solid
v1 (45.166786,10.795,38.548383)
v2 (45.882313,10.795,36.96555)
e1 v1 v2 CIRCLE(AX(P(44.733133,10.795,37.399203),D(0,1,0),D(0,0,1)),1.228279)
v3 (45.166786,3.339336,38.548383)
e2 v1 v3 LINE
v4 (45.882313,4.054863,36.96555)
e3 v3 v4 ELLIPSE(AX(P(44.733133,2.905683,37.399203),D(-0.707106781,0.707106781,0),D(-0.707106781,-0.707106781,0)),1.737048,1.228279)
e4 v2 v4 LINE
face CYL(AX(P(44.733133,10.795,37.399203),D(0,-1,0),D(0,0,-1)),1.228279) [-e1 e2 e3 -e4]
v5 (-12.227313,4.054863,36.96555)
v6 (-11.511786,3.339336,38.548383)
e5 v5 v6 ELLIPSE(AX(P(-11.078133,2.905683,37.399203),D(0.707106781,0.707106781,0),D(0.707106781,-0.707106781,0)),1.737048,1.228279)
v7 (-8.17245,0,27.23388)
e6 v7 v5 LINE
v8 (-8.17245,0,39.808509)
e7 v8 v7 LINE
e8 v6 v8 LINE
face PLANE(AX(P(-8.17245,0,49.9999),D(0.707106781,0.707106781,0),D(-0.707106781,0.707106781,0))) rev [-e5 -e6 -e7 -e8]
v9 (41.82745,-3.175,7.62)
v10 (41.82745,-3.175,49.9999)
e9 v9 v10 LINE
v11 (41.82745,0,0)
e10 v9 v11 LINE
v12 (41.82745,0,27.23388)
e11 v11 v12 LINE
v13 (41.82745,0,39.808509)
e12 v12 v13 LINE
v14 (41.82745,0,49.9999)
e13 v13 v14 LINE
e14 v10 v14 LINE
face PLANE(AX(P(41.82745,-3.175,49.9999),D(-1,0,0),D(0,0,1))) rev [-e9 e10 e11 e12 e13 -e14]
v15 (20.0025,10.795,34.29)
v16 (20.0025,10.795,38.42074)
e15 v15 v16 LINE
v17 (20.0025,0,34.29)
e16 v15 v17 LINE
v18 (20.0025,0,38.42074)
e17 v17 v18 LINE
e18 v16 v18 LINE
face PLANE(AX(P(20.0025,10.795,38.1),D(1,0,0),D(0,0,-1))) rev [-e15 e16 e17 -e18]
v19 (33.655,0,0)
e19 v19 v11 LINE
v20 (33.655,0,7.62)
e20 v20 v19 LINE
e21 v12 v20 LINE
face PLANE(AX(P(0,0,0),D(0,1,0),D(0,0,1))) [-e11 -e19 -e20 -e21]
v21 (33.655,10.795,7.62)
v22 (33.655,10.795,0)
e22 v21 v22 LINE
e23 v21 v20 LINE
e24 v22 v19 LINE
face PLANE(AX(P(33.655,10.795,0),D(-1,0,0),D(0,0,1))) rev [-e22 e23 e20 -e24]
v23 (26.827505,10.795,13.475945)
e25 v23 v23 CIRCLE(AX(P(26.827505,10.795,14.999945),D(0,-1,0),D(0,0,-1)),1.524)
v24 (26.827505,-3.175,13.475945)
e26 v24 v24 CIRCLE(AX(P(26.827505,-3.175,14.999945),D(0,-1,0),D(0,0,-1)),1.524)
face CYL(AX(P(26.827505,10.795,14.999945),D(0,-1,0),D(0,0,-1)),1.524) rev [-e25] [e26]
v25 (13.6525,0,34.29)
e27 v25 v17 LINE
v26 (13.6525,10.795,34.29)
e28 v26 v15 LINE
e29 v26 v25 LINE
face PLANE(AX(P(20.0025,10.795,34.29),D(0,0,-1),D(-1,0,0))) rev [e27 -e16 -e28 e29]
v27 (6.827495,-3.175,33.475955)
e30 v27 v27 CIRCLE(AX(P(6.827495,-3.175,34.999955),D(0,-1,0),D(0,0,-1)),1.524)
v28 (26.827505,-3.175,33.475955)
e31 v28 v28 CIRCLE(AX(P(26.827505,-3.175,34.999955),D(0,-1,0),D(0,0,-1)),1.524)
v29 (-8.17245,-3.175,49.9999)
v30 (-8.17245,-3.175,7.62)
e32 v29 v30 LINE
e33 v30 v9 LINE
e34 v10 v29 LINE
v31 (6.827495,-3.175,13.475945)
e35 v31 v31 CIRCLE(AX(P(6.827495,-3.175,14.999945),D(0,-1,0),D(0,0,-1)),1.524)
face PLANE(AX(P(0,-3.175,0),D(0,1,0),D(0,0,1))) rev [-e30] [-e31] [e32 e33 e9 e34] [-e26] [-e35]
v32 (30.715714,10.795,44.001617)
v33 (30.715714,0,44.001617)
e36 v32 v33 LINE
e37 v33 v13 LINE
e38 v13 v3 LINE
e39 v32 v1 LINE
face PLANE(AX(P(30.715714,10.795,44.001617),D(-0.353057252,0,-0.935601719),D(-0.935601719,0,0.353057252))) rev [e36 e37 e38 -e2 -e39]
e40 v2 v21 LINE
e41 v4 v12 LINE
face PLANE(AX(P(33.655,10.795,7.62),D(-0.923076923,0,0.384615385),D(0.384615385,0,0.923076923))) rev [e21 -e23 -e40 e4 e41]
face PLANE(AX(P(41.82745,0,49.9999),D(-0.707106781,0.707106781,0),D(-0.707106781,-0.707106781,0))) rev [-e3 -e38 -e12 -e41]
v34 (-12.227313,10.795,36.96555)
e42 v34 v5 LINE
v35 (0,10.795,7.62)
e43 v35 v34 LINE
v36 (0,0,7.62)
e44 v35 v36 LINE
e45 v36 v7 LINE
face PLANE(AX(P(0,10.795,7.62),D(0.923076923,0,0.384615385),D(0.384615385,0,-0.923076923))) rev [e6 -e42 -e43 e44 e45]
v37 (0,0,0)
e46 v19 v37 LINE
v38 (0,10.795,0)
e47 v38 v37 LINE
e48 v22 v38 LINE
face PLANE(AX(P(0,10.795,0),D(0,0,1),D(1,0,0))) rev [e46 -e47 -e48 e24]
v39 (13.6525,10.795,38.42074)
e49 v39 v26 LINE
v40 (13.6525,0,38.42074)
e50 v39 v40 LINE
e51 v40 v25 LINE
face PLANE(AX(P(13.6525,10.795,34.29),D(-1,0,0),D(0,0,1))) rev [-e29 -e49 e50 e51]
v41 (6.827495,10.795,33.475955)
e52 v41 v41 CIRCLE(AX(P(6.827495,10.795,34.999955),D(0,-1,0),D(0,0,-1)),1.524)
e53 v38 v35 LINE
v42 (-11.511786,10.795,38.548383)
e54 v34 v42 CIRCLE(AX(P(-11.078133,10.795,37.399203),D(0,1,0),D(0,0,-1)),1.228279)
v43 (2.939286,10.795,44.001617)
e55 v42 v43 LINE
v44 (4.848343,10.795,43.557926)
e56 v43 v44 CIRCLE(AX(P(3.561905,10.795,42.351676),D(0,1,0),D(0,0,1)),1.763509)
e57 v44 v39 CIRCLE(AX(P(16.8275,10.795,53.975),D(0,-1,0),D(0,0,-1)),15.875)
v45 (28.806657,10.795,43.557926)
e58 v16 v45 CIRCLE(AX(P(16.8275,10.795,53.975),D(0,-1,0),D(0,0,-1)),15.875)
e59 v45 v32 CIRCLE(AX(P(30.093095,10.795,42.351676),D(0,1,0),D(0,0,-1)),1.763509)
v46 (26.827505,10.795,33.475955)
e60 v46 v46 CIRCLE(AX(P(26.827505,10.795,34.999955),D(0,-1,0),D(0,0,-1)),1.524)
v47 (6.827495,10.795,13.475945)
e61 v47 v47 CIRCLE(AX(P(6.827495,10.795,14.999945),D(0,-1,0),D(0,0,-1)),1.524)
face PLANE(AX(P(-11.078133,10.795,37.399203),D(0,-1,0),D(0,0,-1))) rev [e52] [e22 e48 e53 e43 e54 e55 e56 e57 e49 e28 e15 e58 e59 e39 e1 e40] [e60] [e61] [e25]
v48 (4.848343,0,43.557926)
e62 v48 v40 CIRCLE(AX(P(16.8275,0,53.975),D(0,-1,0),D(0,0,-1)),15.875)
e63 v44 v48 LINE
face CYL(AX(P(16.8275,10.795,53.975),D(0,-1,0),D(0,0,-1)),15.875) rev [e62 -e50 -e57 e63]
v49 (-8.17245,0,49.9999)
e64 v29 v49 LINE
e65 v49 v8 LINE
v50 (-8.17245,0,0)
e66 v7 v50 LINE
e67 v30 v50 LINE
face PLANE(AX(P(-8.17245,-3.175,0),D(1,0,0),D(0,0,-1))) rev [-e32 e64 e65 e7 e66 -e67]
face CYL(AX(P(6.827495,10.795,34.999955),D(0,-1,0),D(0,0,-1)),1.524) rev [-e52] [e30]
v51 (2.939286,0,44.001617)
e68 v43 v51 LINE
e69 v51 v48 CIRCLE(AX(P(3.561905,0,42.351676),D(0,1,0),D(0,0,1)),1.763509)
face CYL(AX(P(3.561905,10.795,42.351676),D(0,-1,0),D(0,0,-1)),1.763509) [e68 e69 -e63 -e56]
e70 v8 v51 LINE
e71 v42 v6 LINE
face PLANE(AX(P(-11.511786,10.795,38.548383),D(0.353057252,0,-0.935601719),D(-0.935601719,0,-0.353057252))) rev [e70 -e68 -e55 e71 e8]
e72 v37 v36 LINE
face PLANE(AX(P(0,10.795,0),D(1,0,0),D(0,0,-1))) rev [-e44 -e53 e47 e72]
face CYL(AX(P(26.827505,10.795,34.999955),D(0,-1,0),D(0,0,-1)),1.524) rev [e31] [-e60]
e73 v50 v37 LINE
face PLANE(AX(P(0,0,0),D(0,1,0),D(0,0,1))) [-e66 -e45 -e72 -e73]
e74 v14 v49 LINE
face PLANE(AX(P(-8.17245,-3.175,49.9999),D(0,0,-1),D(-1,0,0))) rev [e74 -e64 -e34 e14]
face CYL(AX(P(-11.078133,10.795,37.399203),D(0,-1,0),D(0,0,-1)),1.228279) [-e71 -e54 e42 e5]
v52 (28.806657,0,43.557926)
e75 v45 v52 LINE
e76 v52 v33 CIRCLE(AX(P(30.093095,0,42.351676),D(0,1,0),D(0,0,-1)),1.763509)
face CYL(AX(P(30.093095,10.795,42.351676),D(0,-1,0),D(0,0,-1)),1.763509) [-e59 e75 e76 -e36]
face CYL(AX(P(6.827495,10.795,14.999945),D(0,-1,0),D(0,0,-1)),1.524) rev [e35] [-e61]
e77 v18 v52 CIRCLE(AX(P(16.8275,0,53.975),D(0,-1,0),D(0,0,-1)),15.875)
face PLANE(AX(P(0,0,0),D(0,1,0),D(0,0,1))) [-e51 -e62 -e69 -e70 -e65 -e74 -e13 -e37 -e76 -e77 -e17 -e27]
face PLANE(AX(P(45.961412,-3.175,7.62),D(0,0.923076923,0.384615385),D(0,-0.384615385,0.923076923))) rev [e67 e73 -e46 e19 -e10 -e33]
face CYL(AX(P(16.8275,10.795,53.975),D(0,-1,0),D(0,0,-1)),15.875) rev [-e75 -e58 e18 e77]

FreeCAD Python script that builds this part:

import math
import FreeCAD as App
import Part
import Sketcher

V = App.Vector
Q = App.Units.Quantity

doc = App.newDocument("Part")
body = doc.addObject("PartDesign::Body", "Body")

sketch1 = doc.addObject("Sketcher::SketchObject", "Sketch")
body.addObject(sketch1)
sketch1.AttachmentSupport = (doc.XZ_Plane, [""])
sketch1.MapMode = "FlatFace"
sketch1.addGeometry(Part.LineSegment(V(33.7, 0, 0), V(0, 0, 0)), False)
sketch1.addGeometry(Part.LineSegment(V(0, 0, 0), V(0, 7.6, 0)), False)
sketch1.addGeometry(Part.LineSegment(V(0, 7.6, 0), V(-12.2, 37, 0)), False)
sketch1.addGeometry(Part.ArcOfCircle(Part.Circle(V(-11.1, 37.4, 0), V(0, 0, 1), 1.2), math.radians(111), math.radians(201)), False)
sketch1.addGeometry(Part.LineSegment(V(-11.5, 38.5, 0), V(2.9, 44, 0)), False)
sketch1.addGeometry(Part.ArcOfCircle(Part.Circle(V(3.6, 42.4, 0), V(0, 0, 1), 1.8), math.radians(43), math.radians(111)), False)
sketch1.addGeometry(Part.ArcOfCircle(Part.Circle(V(16.8, 54, 0), V(0, 0, 1), 15.9), math.radians(-139), math.radians(-102)), False)
sketch1.addGeometry(Part.LineSegment(V(13.7, 38.4, 0), V(13.7, 34.3, 0)), False)
sketch1.addGeometry(Part.LineSegment(V(13.7, 34.3, 0), V(20, 34.3, 0)), False)
sketch1.addGeometry(Part.LineSegment(V(20, 34.3, 0), V(20, 38.4, 0)), False)
sketch1.addGeometry(Part.ArcOfCircle(Part.Circle(V(16.8, 54, 0), V(0, 0, 1), 15.9), math.radians(-78), math.radians(-41)), False)
sketch1.addGeometry(Part.ArcOfCircle(Part.Circle(V(30.1, 42.4, 0), V(0, 0, 1), 1.8), math.radians(69), math.radians(137)), False)
sketch1.addGeometry(Part.LineSegment(V(30.7, 44, 0), V(45.2, 38.5, 0)), False)
sketch1.addGeometry(Part.ArcOfCircle(Part.Circle(V(44.7, 37.4, 0), V(0, 0, 1), 1.2), math.radians(-21), math.radians(69)), False)
sketch1.addGeometry(Part.LineSegment(V(45.9, 37, 0), V(33.7, 7.6, 0)), False)
sketch1.addGeometry(Part.LineSegment(V(33.7, 7.6, 0), V(33.7, 0, 0)), False)
sketch1.addConstraint(Sketcher.Constraint("Coincident", 0, 2, 1, 1))
sketch1.addConstraint(Sketcher.Constraint("Coincident", 1, 2, 2, 1))
sketch1.addConstraint(Sketcher.Constraint("Coincident", 2, 2, 3, 2))
sketch1.addConstraint(Sketcher.Constraint("Tangent", 3, 1, 4, 1))
sketch1.addConstraint(Sketcher.Constraint("Tangent", 4, 2, 5, 2))
sketch1.addConstraint(Sketcher.Constraint("Coincident", 5, 1, 6, 1))
sketch1.addConstraint(Sketcher.Constraint("Coincident", 6, 2, 7, 1))
sketch1.addConstraint(Sketcher.Constraint("Coincident", 7, 2, 8, 1))
sketch1.addConstraint(Sketcher.Constraint("Coincident", 8, 2, 9, 1))
sketch1.addConstraint(Sketcher.Constraint("Coincident", 9, 2, 10, 1))
sketch1.addConstraint(Sketcher.Constraint("Coincident", 10, 2, 11, 2))
sketch1.addConstraint(Sketcher.Constraint("Tangent", 11, 1, 12, 1))
sketch1.addConstraint(Sketcher.Constraint("Tangent", 12, 2, 13, 2))
sketch1.addConstraint(Sketcher.Constraint("Coincident", 13, 1, 14, 1))
sketch1.addConstraint(Sketcher.Constraint("Coincident", 14, 2, 15, 1))
sketch1.addConstraint(Sketcher.Constraint("Coincident", 15, 2, 0, 1))
sketch1.addConstraint(Sketcher.Constraint("Horizontal", 0))
sketch1.addConstraint(Sketcher.Constraint("Vertical", 1))
sketch1.addConstraint(Sketcher.Constraint("Vertical", 7))
sketch1.addConstraint(Sketcher.Constraint("Horizontal", 8))
sketch1.addConstraint(Sketcher.Constraint("Vertical", 9))
sketch1.addConstraint(Sketcher.Constraint("Vertical", 15))
sketch1.addConstraint(Sketcher.Constraint("Coincident", 0, 2, -1, 1))
sketch1.addConstraint(Sketcher.Constraint("Coincident", 10, 3, 6, 3))
sketch1.addConstraint(Sketcher.Constraint("Equal", 6, 10))
sketch1.addConstraint(Sketcher.Constraint("Equal", 5, 11))
sketch1.addConstraint(Sketcher.Constraint("Equal", 3, 13))
sketch1.addConstraint(Sketcher.Constraint("Horizontal", 5, 3, 11, 3))
sketch1.addConstraint(Sketcher.Constraint("Horizontal", 3, 3, 13, 3))
sketch1.addConstraint(Sketcher.Constraint("Horizontal", 6, 2, 9, 2))
sketch1.addConstraint(Sketcher.Constraint("Horizontal", 5, 1, 10, 2))
sketch1.addConstraint(Sketcher.Constraint("Horizontal", 4, 2, 11, 1))
sketch1.addConstraint(Sketcher.Constraint("Horizontal", 2, 2, 13, 1))
sketch1.addConstraint(Sketcher.Constraint("Horizontal", 1, 2, 14, 2))
sketch1.addConstraint(Sketcher.Constraint("Equal", 2, 14))
sketch1.addConstraint(Sketcher.Constraint("DistanceY", 1, 1, 1, 2, Q("0.3 in")))
sketch1.addConstraint(Sketcher.Constraint("Radius", 6, Q("0.625 in")))
sketch1.addConstraint(Sketcher.Constraint("DistanceX", 8, 1, 8, 2, Q("0.25 in")))
sketch1.addConstraint(Sketcher.Constraint("DistanceX", 0, 2, 0, 1, Q("1.325 in")))
sketch1.addConstraint(Sketcher.Constraint("DistanceY", -1, 1, 7, 2, Q("1.35 in")))
sketch1.addConstraint(Sketcher.Constraint("DistanceY", -1, 1, 6, 3, Q("2.125 in")))
sketch1.addConstraint(Sketcher.Constraint("Radius", 3, Q("1.228279 mm")))
sketch1.addConstraint(Sketcher.Constraint("Radius", 5, Q("1.763509 mm")))
sketch1.addConstraint(Sketcher.Constraint("DistanceX", 2, 2, 4, 2, Q("15.166599 mm")))
sketch1.addConstraint(Sketcher.Constraint("Distance", 4, Q("15.445751 mm")))
sketch1.addConstraint(Sketcher.Constraint("DistanceY", -1, 1, 2, 2, Q("36.96555 mm")))
sketch1.addConstraint(Sketcher.Constraint("DistanceX", 3, 3, 5, 3, Q("14.640039 mm")))
sketch1.addConstraint(Sketcher.Constraint("DistanceX", 5, 3, 11, 3, Q("26.531189 mm")))
pad1 = doc.addObject("PartDesign::Pad", "Pad")
body.addObject(pad1)
pad1.Profile = sketch1
pad1.Length = Q("0.425 in")
pad1.Reversed = True

sketch2 = doc.addObject("Sketcher::SketchObject", "Sketch001")
body.addObject(sketch2)
sketch2.AttachmentSupport = (doc.XZ_Plane, [""])
sketch2.MapMode = "FlatFace"
sketch2.addGeometry(Part.LineSegment(V(-8, 0, 0), V(42, 0, 0)), False)
sketch2.addGeometry(Part.LineSegment(V(42, 0, 0), V(42, 50, 0)), False)
sketch2.addGeometry(Part.LineSegment(V(42, 50, 0), V(-8, 50, 0)), False)
sketch2.addGeometry(Part.LineSegment(V(-8, 50, 0), V(-8, 0, 0)), False)
sketch2.addConstraint(Sketcher.Constraint("Coincident", 0, 2, 1, 1))
sketch2.addConstraint(Sketcher.Constraint("Coincident", 1, 2, 2, 1))
sketch2.addConstraint(Sketcher.Constraint("Coincident", 2, 2, 3, 1))
sketch2.addConstraint(Sketcher.Constraint("Coincident", 3, 2, 0, 1))
sketch2.addConstraint(Sketcher.Constraint("Horizontal", 0))
sketch2.addConstraint(Sketcher.Constraint("Vertical", 1))
sketch2.addConstraint(Sketcher.Constraint("Horizontal", 2))
sketch2.addConstraint(Sketcher.Constraint("Vertical", 3))
sketch2.addConstraint(Sketcher.Constraint("PointOnObject", 0, 2, -1))
sketch2.addConstraint(Sketcher.Constraint("Equal", 2, 1))
sketch2.addConstraint(Sketcher.Constraint("DistanceX", 0, 1, 0, 2, Q("1.9685 in")))
sketch2.addConstraint(Sketcher.Constraint("DistanceX", -1, 1, 0, 2, Q("41.82745 mm")))
pad2 = doc.addObject("PartDesign::Pad", "Pad001")
body.addObject(pad2)
pad2.Profile = sketch2
pad2.Length = Q("0.125 in")

sketch3 = doc.addObject("Sketcher::SketchObject", "Sketch002")
body.addObject(sketch3)
sketch3.AttachmentSupport = (doc.YZ_Plane, [""])
sketch3.MapMode = "FlatFace"
sketch3.AttachmentOffset = App.Placement(V(0, 0, -8.17245), App.Rotation())
sketch3.addGeometry(Part.LineSegment(V(-3.2, 7.6, 0), V(0, 0, 0)), False)
sketch3.addGeometry(Part.LineSegment(V(0, 0, 0), V(-3.2, 0, 0)), False)
sketch3.addGeometry(Part.LineSegment(V(-3.2, 0, 0), V(-3.2, 7.6, 0)), False)
sketch3.addConstraint(Sketcher.Constraint("Coincident", 0, 2, 1, 1))
sketch3.addConstraint(Sketcher.Constraint("Coincident", 1, 2, 2, 1))
sketch3.addConstraint(Sketcher.Constraint("Coincident", 2, 2, 0, 1))
sketch3.addConstraint(Sketcher.Constraint("Horizontal", 1))
sketch3.addConstraint(Sketcher.Constraint("Vertical", 2))
sketch3.addConstraint(Sketcher.Constraint("Coincident", 0, 2, -1, 1))
sketch3.addConstraint(Sketcher.Constraint("DistanceY", 2, 1, 2, 2, Q("0.3 in")))
sketch3.addConstraint(Sketcher.Constraint("DistanceX", 1, 2, 1, 1, Q("0.125 in")))
pocket1 = doc.addObject("PartDesign::Pocket", "Pocket")
body.addObject(pocket1)
pocket1.Profile = sketch3
pocket1.Type = "ThroughAll"
pocket1.Reversed = True

sketch4 = doc.addObject("Sketcher::SketchObject", "Sketch003")
body.addObject(sketch4)
sketch4.AttachmentSupport = (doc.XY_Plane, [""])
sketch4.MapMode = "FlatFace"
sketch4.addGeometry(Part.LineSegment(V(48, 0, 0), V(42, 0, 0)), False)
sketch4.addGeometry(Part.LineSegment(V(42, 0, 0), V(48, 6, 0)), False)
sketch4.addGeometry(Part.LineSegment(V(48, 6, 0), V(48, 0, 0)), False)
sketch4.addGeometry(Part.LineSegment(V(-8, 0, 0), V(-16, 0, 0)), False)
sketch4.addGeometry(Part.LineSegment(V(-16, 0, 0), V(-16, 8, 0)), False)
sketch4.addGeometry(Part.LineSegment(V(-16, 8, 0), V(-8, 0, 0)), False)
sketch4.addConstraint(Sketcher.Constraint("Coincident", 0, 2, 1, 1))
sketch4.addConstraint(Sketcher.Constraint("Coincident", 1, 2, 2, 1))
sketch4.addConstraint(Sketcher.Constraint("Coincident", 2, 2, 0, 1))
sketch4.addConstraint(Sketcher.Constraint("Coincident", 3, 2, 4, 1))
sketch4.addConstraint(Sketcher.Constraint("Coincident", 4, 2, 5, 1))
sketch4.addConstraint(Sketcher.Constraint("Coincident", 5, 2, 3, 1))
sketch4.addConstraint(Sketcher.Constraint("Horizontal", 0))
sketch4.addConstraint(Sketcher.Constraint("Vertical", 2))
sketch4.addConstraint(Sketcher.Constraint("Horizontal", 3))
sketch4.addConstraint(Sketcher.Constraint("Vertical", 4))
sketch4.addConstraint(Sketcher.Constraint("PointOnObject", 0, 2, -1))
sketch4.addConstraint(Sketcher.Constraint("PointOnObject", 3, 2, -1))
sketch4.addConstraint(Sketcher.Constraint("Perpendicular", 1, 5))
sketch4.addConstraint(Sketcher.Constraint("Equal", 0, 2))
sketch4.addConstraint(Sketcher.Constraint("DistanceX", 5, 2, 0, 2, Q("1.9685 in")))
sketch4.addConstraint(Sketcher.Constraint("Distance", 5, Q("11.173298 mm")))
sketch4.addConstraint(Sketcher.Constraint("DistanceX", 0, 2, 0, 1, Q("6.144144 mm")))
sketch4.addConstraint(Sketcher.Constraint("DistanceX", -1, 1, 0, 2, Q("41.82745 mm")))
pocket2 = doc.addObject("PartDesign::Pocket", "Pocket001")
body.addObject(pocket2)
pocket2.Profile = sketch4
pocket2.Type = "ThroughAll"
pocket2.Reversed = True

sketch5 = doc.addObject("Sketcher::SketchObject", "Sketch004")
body.addObject(sketch5)
sketch5.AttachmentSupport = (doc.XZ_Plane, [""])
sketch5.MapMode = "FlatFace"
sketch5.AttachmentOffset = App.Placement(V(0, 0, 0.125 * 25.4), App.Rotation())
sketch5.addGeometry(Part.Circle(V(6.8, 35, 0), V(0, 0, 1), 1.5), False)
sketch5.addGeometry(Part.Circle(V(26.8, 35, 0), V(0, 0, 1), 1.5), False)
sketch5.addGeometry(Part.Circle(V(6.8, 15, 0), V(0, 0, 1), 1.5), False)
sketch5.addGeometry(Part.Circle(V(26.8, 15, 0), V(0, 0, 1), 1.5), False)
sketch5.addConstraint(Sketcher.Constraint("Equal", 0, 1))
sketch5.addConstraint(Sketcher.Constraint("Equal", 1, 2))
sketch5.addConstraint(Sketcher.Constraint("Equal", 2, 3))
sketch5.addConstraint(Sketcher.Constraint("Horizontal", 0, 3, 1, 3))
sketch5.addConstraint(Sketcher.Constraint("Horizontal", 2, 3, 3, 3))
sketch5.addConstraint(Sketcher.Constraint("Vertical", 0, 3, 2, 3))
sketch5.addConstraint(Sketcher.Constraint("Vertical", 1, 3, 3, 3))
sketch5.addConstraint(Sketcher.Constraint("Diameter", 0, Q("0.12 in")))
sketch5.addConstraint(Sketcher.Constraint("DistanceX", 0, 3, 1, 3, Q("20.000011 mm")))
sketch5.addConstraint(Sketcher.Constraint("DistanceY", 2, 3, 0, 3, Q("20.000011 mm")))
sketch5.addConstraint(Sketcher.Constraint("DistanceX", -1, 1, 0, 3, Q("6.827495 mm")))
sketch5.addConstraint(Sketcher.Constraint("DistanceY", -1, 1, 0, 3, Q("34.999955 mm")))
pocket3 = doc.addObject("PartDesign::Pocket", "Pocket002")
body.addObject(pocket3)
pocket3.Profile = sketch5
pocket3.Type = "ThroughAll"

doc.recompute()
